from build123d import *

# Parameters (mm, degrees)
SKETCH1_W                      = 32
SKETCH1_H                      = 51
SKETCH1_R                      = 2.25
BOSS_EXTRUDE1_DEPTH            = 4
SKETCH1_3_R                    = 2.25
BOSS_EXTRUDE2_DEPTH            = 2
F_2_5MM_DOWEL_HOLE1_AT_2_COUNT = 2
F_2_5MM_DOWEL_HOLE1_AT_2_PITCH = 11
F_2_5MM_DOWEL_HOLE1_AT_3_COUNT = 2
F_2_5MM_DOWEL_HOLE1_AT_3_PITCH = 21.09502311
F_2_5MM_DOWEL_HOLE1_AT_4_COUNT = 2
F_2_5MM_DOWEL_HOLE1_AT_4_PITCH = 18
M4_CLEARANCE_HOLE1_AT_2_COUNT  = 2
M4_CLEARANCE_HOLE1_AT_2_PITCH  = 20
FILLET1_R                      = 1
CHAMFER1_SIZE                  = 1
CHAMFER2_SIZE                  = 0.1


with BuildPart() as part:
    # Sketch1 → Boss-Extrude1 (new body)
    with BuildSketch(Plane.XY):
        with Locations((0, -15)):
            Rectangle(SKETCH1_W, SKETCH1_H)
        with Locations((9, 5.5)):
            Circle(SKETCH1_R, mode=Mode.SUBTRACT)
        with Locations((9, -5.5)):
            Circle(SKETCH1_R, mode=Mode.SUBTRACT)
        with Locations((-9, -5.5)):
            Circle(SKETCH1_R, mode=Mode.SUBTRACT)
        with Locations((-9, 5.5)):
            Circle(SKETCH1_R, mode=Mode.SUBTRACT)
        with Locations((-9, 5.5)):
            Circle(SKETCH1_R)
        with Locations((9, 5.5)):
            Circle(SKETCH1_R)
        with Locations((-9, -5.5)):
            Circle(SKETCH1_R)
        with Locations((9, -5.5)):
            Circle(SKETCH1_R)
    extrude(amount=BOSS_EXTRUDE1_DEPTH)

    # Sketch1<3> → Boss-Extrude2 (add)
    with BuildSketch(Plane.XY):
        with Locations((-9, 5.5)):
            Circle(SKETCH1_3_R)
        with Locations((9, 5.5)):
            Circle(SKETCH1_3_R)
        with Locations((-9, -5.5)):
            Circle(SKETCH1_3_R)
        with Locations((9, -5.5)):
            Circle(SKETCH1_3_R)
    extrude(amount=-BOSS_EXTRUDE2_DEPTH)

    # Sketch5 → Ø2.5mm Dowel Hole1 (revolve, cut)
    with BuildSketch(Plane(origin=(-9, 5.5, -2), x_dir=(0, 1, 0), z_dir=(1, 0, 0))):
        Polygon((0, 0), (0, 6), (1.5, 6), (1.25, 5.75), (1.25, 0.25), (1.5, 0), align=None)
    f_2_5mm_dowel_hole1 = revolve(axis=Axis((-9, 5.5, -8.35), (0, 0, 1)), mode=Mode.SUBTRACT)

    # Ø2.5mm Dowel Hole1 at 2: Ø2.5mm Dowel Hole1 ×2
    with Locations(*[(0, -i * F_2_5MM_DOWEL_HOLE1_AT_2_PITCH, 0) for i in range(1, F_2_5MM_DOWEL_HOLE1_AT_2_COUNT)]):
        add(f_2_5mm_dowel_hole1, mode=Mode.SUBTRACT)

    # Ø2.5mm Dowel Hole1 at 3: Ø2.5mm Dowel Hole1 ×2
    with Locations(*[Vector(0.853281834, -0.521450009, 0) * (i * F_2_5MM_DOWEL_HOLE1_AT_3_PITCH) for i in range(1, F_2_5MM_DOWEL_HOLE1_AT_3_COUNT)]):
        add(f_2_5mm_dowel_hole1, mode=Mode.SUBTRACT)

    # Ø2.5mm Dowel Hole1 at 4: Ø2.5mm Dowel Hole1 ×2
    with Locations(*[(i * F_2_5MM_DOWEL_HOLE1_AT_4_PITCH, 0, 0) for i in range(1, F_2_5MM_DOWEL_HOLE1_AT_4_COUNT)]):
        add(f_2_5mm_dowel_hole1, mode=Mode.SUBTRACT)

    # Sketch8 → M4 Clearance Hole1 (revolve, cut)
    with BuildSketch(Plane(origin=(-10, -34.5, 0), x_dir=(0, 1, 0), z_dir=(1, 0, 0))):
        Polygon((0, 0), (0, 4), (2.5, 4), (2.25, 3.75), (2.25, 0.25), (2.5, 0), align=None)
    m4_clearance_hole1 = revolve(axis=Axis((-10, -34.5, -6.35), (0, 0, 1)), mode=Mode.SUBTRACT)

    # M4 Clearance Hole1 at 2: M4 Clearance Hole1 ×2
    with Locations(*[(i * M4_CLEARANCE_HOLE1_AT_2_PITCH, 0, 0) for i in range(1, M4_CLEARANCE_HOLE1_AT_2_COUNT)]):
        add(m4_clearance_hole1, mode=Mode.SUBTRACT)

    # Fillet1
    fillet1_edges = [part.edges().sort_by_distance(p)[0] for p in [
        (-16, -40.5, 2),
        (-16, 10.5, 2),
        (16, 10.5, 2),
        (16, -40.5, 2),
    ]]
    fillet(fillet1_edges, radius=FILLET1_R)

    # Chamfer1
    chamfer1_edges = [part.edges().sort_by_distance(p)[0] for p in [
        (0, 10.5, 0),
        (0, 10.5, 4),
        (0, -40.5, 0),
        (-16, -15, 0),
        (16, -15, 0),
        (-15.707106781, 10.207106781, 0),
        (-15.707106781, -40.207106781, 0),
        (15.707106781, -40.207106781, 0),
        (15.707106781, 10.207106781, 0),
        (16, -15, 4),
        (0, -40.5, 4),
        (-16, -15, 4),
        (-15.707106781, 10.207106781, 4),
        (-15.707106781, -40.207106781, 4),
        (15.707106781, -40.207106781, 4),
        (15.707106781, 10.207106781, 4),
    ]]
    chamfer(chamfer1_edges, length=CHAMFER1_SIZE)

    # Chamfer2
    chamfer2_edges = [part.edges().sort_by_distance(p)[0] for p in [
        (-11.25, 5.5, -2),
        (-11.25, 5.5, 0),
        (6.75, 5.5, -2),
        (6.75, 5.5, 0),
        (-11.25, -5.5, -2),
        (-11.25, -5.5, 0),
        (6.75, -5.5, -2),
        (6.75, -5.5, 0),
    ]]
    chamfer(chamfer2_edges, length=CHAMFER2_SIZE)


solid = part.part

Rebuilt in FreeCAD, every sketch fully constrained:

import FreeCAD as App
import Part
import Sketcher
from FreeCAD import Vector
Q = App.Units.Quantity


def edges_at(feature, points):
    """Names of the edges that pass closest to the given points."""
    edges = feature.Shape.Edges
    near = lambda p: min(range(len(edges)), key=lambda i: edges[i].distToShape(Part.Vertex(*p))[0])
    return sorted({f"Edge{near(p) + 1}" for p in points})

doc = App.newDocument("Part")
body = doc.addObject("PartDesign::Body", "Body")

sketch1 = doc.addObject("Sketcher::SketchObject", "Sketch")
body.addObject(sketch1)
sketch1.AttachmentSupport = (doc.XY_Plane, [""])
sketch1.MapMode = "FlatFace"
sketch1.addGeometry([
    Part.LineSegment(Vector(-16, 10.5, 0), Vector(-16, -40.5, 0)),
    Part.LineSegment(Vector(-16, -40.5, 0), Vector(16, -40.5, 0)),
    Part.LineSegment(Vector(16, -40.5, 0), Vector(16, 10.5, 0)),
    Part.LineSegment(Vector(16, 10.5, 0), Vector(-16, 10.5, 0)),
], False)
sketch1.addConstraint([
    Sketcher.Constraint("Coincident", 0, 2, 1, 1),
    Sketcher.Constraint("Coincident", 1, 2, 2, 1),
    Sketcher.Constraint("Coincident", 2, 2, 3, 1),
    Sketcher.Constraint("Coincident", 3, 2, 0, 1),
    Sketcher.Constraint("Vertical", 0),
    Sketcher.Constraint("Horizontal", 1),
    Sketcher.Constraint("Vertical", 2),
    Sketcher.Constraint("Horizontal", 3),
    Sketcher.Constraint("DistanceX", 1, 1, 1, 2, Q("32 mm")),
    Sketcher.Constraint("DistanceY", 0, 2, 0, 1, Q("51 mm")),
    Sketcher.Constraint("DistanceX", 0, 2, -1, 1, Q("16 mm")),
    Sketcher.Constraint("DistanceY", 0, 2, -1, 1, Q("40.5 mm")),
])
pad1 = doc.addObject("PartDesign::Pad", "Pad")
body.addObject(pad1)
pad1.Profile = sketch1
pad1.Length = 4

sketch2 = doc.addObject("Sketcher::SketchObject", "Sketch001")
body.addObject(sketch2)
sketch2.AttachmentSupport = (doc.XY_Plane, [""])
sketch2.MapMode = "FlatFace"
sketch2.addGeometry([
    Part.Circle(Vector(-9, 5.5, 0), Vector(0, 0, 1), 2.25),
    Part.Circle(Vector(9, 5.5, 0), Vector(0, 0, 1), 2.25),
    Part.Circle(Vector(-9, -5.5, 0), Vector(0, 0, 1), 2.25),
    Part.Circle(Vector(9, -5.5, 0), Vector(0, 0, 1), 2.25),
], False)
sketch2.addConstraint([
    Sketcher.Constraint("Equal", 0, 1),
    Sketcher.Constraint("Equal", 1, 2),
    Sketcher.Constraint("Equal", 2, 3),
    Sketcher.Constraint("Symmetric", 1, 3, 2, 3, -1, 1),
    Sketcher.Constraint("Symmetric", 0, 3, 3, 3, -1, 1),
    Sketcher.Constraint("Symmetric", 0, 3, 1, 3, -2),
    Sketcher.Constraint("Diameter", 0, Q("4.5 mm")),
    Sketcher.Constraint("DistanceX", 0, 3, -1, 1, Q("9 mm")),
    Sketcher.Constraint("DistanceY", 2, 3, 0, 3, Q("11 mm")),
])
pad2 = doc.addObject("PartDesign::Pad", "Pad001")
body.addObject(pad2)
pad2.Profile = sketch2
pad2.Length = 2
pad2.Reversed = True

sketch3 = doc.addObject("Sketcher::SketchObject", "Sketch002")
body.addObject(sketch3)
sketch3.AttachmentSupport = (doc.YZ_Plane, [""])
sketch3.MapMode = "FlatFace"
sketch3.AttachmentOffset = App.Placement(Vector(0, 0, -9), App.Rotation())
sketch3.addGeometry([
    Part.LineSegment(Vector(5.5, 4, 0), Vector(5.5, -2, 0)),
    Part.LineSegment(Vector(5.5, -2, 0), Vector(7, -2, 0)),
    Part.LineSegment(Vector(7, -2, 0), Vector(6.75, -1.75, 0)),
    Part.LineSegment(Vector(6.75, -1.75, 0), Vector(6.75, 3.75, 0)),
    Part.LineSegment(Vector(6.75, 3.75, 0), Vector(7, 4, 0)),
    Part.LineSegment(Vector(7, 4, 0), Vector(5.5, 4, 0)),
], False)
sketch3.addGeometry(Part.LineSegment(Vector(5.5, -2, 0), Vector(5.5, 4, 0)), True)
sketch3.addConstraint([
    Sketcher.Constraint("Coincident", 0, 2, 1, 1),
    Sketcher.Constraint("Coincident", 1, 2, 2, 1),
    Sketcher.Constraint("Coincident", 2, 2, 3, 1),
    Sketcher.Constraint("Coincident", 3, 2, 4, 1),
    Sketcher.Constraint("Coincident", 4, 2, 5, 1),
    Sketcher.Constraint("Coincident", 5, 2, 0, 1),
    Sketcher.Constraint("Vertical", 0),
    Sketcher.Constraint("Horizontal", 1),
    Sketcher.Constraint("Vertical", 3),
    Sketcher.Constraint("Horizontal", 5),
    Sketcher.Constraint("Vertical", 6),
    Sketcher.Constraint("Coincident", 6, 1, 0, 2),
    Sketcher.Constraint("Perpendicular", 2, 4),
    Sketcher.Constraint("Horizontal", 4, 2, 6, 2),
    Sketcher.Constraint("Vertical", 1, 2, 4, 2),
    Sketcher.Constraint("Equal", 2, 4),
    Sketcher.Constraint("DistanceY", 0, 2, 0, 1, Q("6 mm")),
    Sketcher.Constraint("DistanceX", 1, 1, 1, 2, Q("1.5 mm")),
    Sketcher.Constraint("DistanceY", 3, 1, 3, 2, Q("5.5 mm")),
    Sketcher.Constraint("DistanceY", 0, 2, -1, 1, Q("2 mm")),
    Sketcher.Constraint("DistanceX", -1, 1, 1, 2, Q("7 mm")),
])
groove = doc.addObject("PartDesign::Groove", "Groove")
body.addObject(groove)
groove.Profile = sketch3
groove.ReferenceAxis = (sketch3, ["Axis0"])
groove.Angle = 360
doc.recompute()

linearpattern = doc.addObject("PartDesign::LinearPattern", "LinearPattern")
body.addObject(linearpattern)
linearpattern.Originals = [groove]
linearpattern.Direction = (doc.Y_Axis, [""])
linearpattern.Mode = "offset"
linearpattern.Offset = 11
linearpattern.Occurrences = 2
linearpattern.Reversed = True
body.Tip = linearpattern
doc.recompute()

datumline = doc.addObject("PartDesign::Line", "DatumLine")
body.addObject(datumline)
datumline.Placement = App.Placement(Vector(0, 0, 0), App.Rotation(Vector(0, 0, 1), Vector(0.853281834, -0.521450009, 0)))
linearpattern2 = doc.addObject("PartDesign::LinearPattern", "LinearPattern001")
body.addObject(linearpattern2)
linearpattern2.Originals = [groove]
linearpattern2.Direction = (datumline, [""])
linearpattern2.Mode = "offset"
linearpattern2.Offset = 21.095023
linearpattern2.Occurrences = 2
body.Tip = linearpattern2
doc.recompute()

linearpattern3 = doc.addObject("PartDesign::LinearPattern", "LinearPattern002")
body.addObject(linearpattern3)
linearpattern3.Originals = [groove]
linearpattern3.Direction = (doc.X_Axis, [""])
linearpattern3.Mode = "offset"
linearpattern3.Offset = 18
linearpattern3.Occurrences = 2
body.Tip = linearpattern3

sketch4 = doc.addObject("Sketcher::SketchObject", "Sketch003")
body.addObject(sketch4)
sketch4.AttachmentSupport = (doc.YZ_Plane, [""])
sketch4.MapMode = "FlatFace"
sketch4.AttachmentOffset = App.Placement(Vector(0, 0, -10), App.Rotation())
sketch4.addGeometry([
    Part.LineSegment(Vector(-34.5, 4, 0), Vector(-34.5, 0, 0)),
    Part.LineSegment(Vector(-34.5, 0, 0), Vector(-32, 0, 0)),
    Part.LineSegment(Vector(-32, 0, 0), Vector(-32.25, 0.25, 0)),
    Part.LineSegment(Vector(-32.25, 0.25, 0), Vector(-32.25, 3.75, 0)),
    Part.LineSegment(Vector(-32.25, 3.75, 0), Vector(-32, 4, 0)),
    Part.LineSegment(Vector(-32, 4, 0), Vector(-34.5, 4, 0)),
], False)
sketch4.addGeometry(Part.LineSegment(Vector(-34.5, 0, 0), Vector(-34.5, 4, 0)), True)
sketch4.addConstraint([
    Sketcher.Constraint("Coincident", 0, 2, 1, 1),
    Sketcher.Constraint("Coincident", 1, 2, 2, 1),
    Sketcher.Constraint("Coincident", 2, 2, 3, 1),
    Sketcher.Constraint("Coincident", 3, 2, 4, 1),
    Sketcher.Constraint("Coincident", 4, 2, 5, 1),
    Sketcher.Constraint("Coincident", 5, 2, 0, 1),
    Sketcher.Constraint("Vertical", 0),
    Sketcher.Constraint("Horizontal", 1),
    Sketcher.Constraint("Vertical", 3),
    Sketcher.Constraint("Horizontal", 5),
    Sketcher.Constraint("Vertical", 6),
    Sketcher.Constraint("Coincident", 6, 1, 0, 2),
    Sketcher.Constraint("PointOnObject", 0, 2, -1),
    Sketcher.Constraint("Perpendicular", 2, 4),
    Sketcher.Constraint("Horizontal", 4, 2, 6, 2),
    Sketcher.Constraint("Vertical", 1, 2, 4, 2),
    Sketcher.Constraint("Equal", 2, 4),
    Sketcher.Constraint("DistanceY", 0, 2, 0, 1, Q("4 mm")),
    Sketcher.Constraint("DistanceX", 1, 1, 1, 2, Q("2.5 mm")),
    Sketcher.Constraint("DistanceY", 3, 1, 3, 2, Q("3.5 mm")),
    Sketcher.Constraint("DistanceX", 1, 2, -1, 1, Q("32 mm")),
])
groove2 = doc.addObject("PartDesign::Groove", "Groove001")
body.addObject(groove2)
groove2.Profile = sketch4
groove2.ReferenceAxis = (sketch4, ["Axis0"])
groove2.Angle = 360
doc.recompute()

linearpattern4 = doc.addObject("PartDesign::LinearPattern", "LinearPattern003")
body.addObject(linearpattern4)
linearpattern4.Originals = [groove2]
linearpattern4.Direction = (doc.X_Axis, [""])
linearpattern4.Mode = "offset"
linearpattern4.Offset = 20
linearpattern4.Occurrences = 2
body.Tip = linearpattern4
doc.recompute()

fillet = doc.addObject("PartDesign::Fillet", "Fillet")
body.addObject(fillet)
fillet.Base = (linearpattern4, edges_at(linearpattern4, [
    (-16, -40.5, 2),
    (-16, 10.5, 2),
    (16, 10.5, 2),
    (16, -40.5, 2),
]))
fillet.Radius = 1
doc.recompute()

chamfer = doc.addObject("PartDesign::Chamfer", "Chamfer")
body.addObject(chamfer)
chamfer.Base = (fillet, edges_at(fillet, [
    (0, 10.5, 0),
    (0, 10.5, 4),
    (0, -40.5, 0),
    (-16, -15, 0),
    (16, -15, 0),
    (-15.707, 10.207, 0),
    (-15.707, -40.207, 0),
    (15.707, -40.207, 0),
    (15.707, 10.207, 0),
    (16, -15, 4),
    (0, -40.5, 4),
    (-16, -15, 4),
    (-15.707, 10.207, 4),
    (-15.707, -40.207, 4),
    (15.707, -40.207, 4),
    (15.707, 10.207, 4),
]))
chamfer.Size = 1
doc.recompute()

chamfer2 = doc.addObject("PartDesign::Chamfer", "Chamfer001")
body.addObject(chamfer2)
chamfer2.Base = (chamfer, edges_at(chamfer, [
    (-11.25, 5.5, -2),
    (-11.25, 5.5, 0),
    (6.75, 5.5, -2),
    (6.75, 5.5, 0),
    (-11.25, -5.5, -2),
    (-11.25, -5.5, 0),
    (6.75, -5.5, -2),
    (6.75, -5.5, 0),
]))
chamfer2.Size = 0.1

doc.recompute()
